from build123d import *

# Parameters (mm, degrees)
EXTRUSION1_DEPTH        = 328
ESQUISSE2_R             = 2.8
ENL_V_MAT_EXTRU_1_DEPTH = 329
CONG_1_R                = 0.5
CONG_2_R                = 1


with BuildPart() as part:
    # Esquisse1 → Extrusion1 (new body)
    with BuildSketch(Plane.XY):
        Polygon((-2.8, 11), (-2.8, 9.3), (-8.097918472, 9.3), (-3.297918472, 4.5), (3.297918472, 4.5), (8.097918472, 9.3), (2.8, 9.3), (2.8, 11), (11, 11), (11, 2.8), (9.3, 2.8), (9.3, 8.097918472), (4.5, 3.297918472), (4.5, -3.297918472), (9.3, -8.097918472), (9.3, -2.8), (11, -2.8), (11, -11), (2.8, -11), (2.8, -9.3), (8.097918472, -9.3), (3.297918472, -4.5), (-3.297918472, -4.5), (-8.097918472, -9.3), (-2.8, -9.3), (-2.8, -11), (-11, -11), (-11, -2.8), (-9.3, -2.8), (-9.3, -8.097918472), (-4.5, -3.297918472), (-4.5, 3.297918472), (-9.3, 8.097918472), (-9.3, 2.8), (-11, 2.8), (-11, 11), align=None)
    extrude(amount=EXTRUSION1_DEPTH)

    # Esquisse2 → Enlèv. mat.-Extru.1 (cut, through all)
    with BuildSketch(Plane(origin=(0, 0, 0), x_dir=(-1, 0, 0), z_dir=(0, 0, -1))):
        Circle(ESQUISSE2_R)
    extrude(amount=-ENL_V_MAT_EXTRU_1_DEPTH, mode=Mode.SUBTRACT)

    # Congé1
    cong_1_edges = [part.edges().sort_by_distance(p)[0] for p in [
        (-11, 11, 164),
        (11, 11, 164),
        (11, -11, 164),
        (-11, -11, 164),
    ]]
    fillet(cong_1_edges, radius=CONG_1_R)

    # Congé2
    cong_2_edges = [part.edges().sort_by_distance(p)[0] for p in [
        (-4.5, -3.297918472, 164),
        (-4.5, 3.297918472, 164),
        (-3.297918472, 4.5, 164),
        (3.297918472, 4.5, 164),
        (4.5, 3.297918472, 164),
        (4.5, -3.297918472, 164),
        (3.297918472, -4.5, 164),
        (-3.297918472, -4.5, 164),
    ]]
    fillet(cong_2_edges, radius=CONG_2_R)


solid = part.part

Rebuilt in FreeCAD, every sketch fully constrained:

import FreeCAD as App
import Part
import Sketcher

V = App.Vector
Q = App.Units.Quantity


def edges_at(feature, points):
    """Names of the edges that pass closest to the given points."""
    edges = feature.Shape.Edges
    near = lambda p: min(range(len(edges)), key=lambda i: edges[i].distToShape(Part.Vertex(*p))[0])
    return sorted({f"Edge{near(p) + 1}" for p in points})

doc = App.newDocument("Part")
body = doc.addObject("PartDesign::Body", "Body")

# Sketch on XY plane
sketch1 = doc.addObject("Sketcher::SketchObject", "Sketch")
body.addObject(sketch1)
sketch1.AttachmentSupport = (doc.XY_Plane, [""])
sketch1.MapMode = "FlatFace"
sketch1.addGeometry([
    Part.LineSegment(V(-2.8, 9.3, 0), V(-2.8, 11, 0)),  # 0
    Part.LineSegment(V(-2.8, 11, 0), V(-11, 11, 0)),  # 1
    Part.LineSegment(V(-11, 11, 0), V(-11, 2.8, 0)),  # 2
    Part.LineSegment(V(-11, 2.8, 0), V(-9.3, 2.8, 0)),  # 3
    Part.LineSegment(V(-9.3, 2.8, 0), V(-9.3, 8.1, 0)),  # 4
    Part.LineSegment(V(-9.3, 8.1, 0), V(-4.5, 3.3, 0)),  # 5
    Part.LineSegment(V(-4.5, 3.3, 0), V(-4.5, -3.3, 0)),  # 6
    Part.LineSegment(V(-4.5, -3.3, 0), V(-9.3, -8.1, 0)),  # 7
    Part.LineSegment(V(-9.3, -8.1, 0), V(-9.3, -2.8, 0)),  # 8
    Part.LineSegment(V(-9.3, -2.8, 0), V(-11, -2.8, 0)),  # 9
    Part.LineSegment(V(-11, -2.8, 0), V(-11, -11, 0)),  # 10
    Part.LineSegment(V(-11, -11, 0), V(-2.8, -11, 0)),  # 11
    Part.LineSegment(V(-2.8, -11, 0), V(-2.8, -9.3, 0)),  # 12
    Part.LineSegment(V(-2.8, -9.3, 0), V(-8.1, -9.3, 0)),  # 13
    Part.LineSegment(V(-8.1, -9.3, 0), V(-3.3, -4.5, 0)),  # 14
    Part.LineSegment(V(-3.3, -4.5, 0), V(3.3, -4.5, 0)),  # 15
    Part.LineSegment(V(3.3, -4.5, 0), V(8.1, -9.3, 0)),  # 16
    Part.LineSegment(V(8.1, -9.3, 0), V(2.8, -9.3, 0)),  # 17
    Part.LineSegment(V(2.8, -9.3, 0), V(2.8, -11, 0)),  # 18
    Part.LineSegment(V(2.8, -11, 0), V(11, -11, 0)),  # 19
    Part.LineSegment(V(11, -11, 0), V(11, -2.8, 0)),  # 20
    Part.LineSegment(V(11, -2.8, 0), V(9.3, -2.8, 0)),  # 21
    Part.LineSegment(V(9.3, -2.8, 0), V(9.3, -8.1, 0)),  # 22
    Part.LineSegment(V(9.3, -8.1, 0), V(4.5, -3.3, 0)),  # 23
    Part.LineSegment(V(4.5, -3.3, 0), V(4.5, 3.3, 0)),  # 24
    Part.LineSegment(V(4.5, 3.3, 0), V(9.3, 8.1, 0)),  # 25
    Part.LineSegment(V(9.3, 8.1, 0), V(9.3, 2.8, 0)),  # 26
    Part.LineSegment(V(9.3, 2.8, 0), V(11, 2.8, 0)),  # 27
    Part.LineSegment(V(11, 2.8, 0), V(11, 11, 0)),  # 28
    Part.LineSegment(V(11, 11, 0), V(2.8, 11, 0)),  # 29
    Part.LineSegment(V(2.8, 11, 0), V(2.8, 9.3, 0)),  # 30
    Part.LineSegment(V(2.8, 9.3, 0), V(8.1, 9.3, 0)),  # 31
    Part.LineSegment(V(8.1, 9.3, 0), V(3.3, 4.5, 0)),  # 32
    Part.LineSegment(V(3.3, 4.5, 0), V(-3.3, 4.5, 0)),  # 33
    Part.LineSegment(V(-3.3, 4.5, 0), V(-8.1, 9.3, 0)),  # 34
    Part.LineSegment(V(-8.1, 9.3, 0), V(-2.8, 9.3, 0)),  # 35
], False)
sketch1.addConstraint([
    Sketcher.Constraint("Coincident", 0, 2, 1, 1),
    Sketcher.Constraint("Coincident", 1, 2, 2, 1),
    Sketcher.Constraint("Coincident", 2, 2, 3, 1),
    Sketcher.Constraint("Coincident", 3, 2, 4, 1),
    Sketcher.Constraint("Coincident", 4, 2, 5, 1),
    Sketcher.Constraint("Coincident", 5, 2, 6, 1),
    Sketcher.Constraint("Coincident", 6, 2, 7, 1),
    Sketcher.Constraint("Coincident", 7, 2, 8, 1),
    Sketcher.Constraint("Coincident", 8, 2, 9, 1),
    Sketcher.Constraint("Coincident", 9, 2, 10, 1),
    Sketcher.Constraint("Coincident", 10, 2, 11, 1),
    Sketcher.Constraint("Coincident", 11, 2, 12, 1),
    Sketcher.Constraint("Coincident", 12, 2, 13, 1),
    Sketcher.Constraint("Coincident", 13, 2, 14, 1),
    Sketcher.Constraint("Coincident", 14, 2, 15, 1),
    Sketcher.Constraint("Coincident", 15, 2, 16, 1),
    Sketcher.Constraint("Coincident", 16, 2, 17, 1),
    Sketcher.Constraint("Coincident", 17, 2, 18, 1),
    Sketcher.Constraint("Coincident", 18, 2, 19, 1),
    Sketcher.Constraint("Coincident", 19, 2, 20, 1),
    Sketcher.Constraint("Coincident", 20, 2, 21, 1),
    Sketcher.Constraint("Coincident", 21, 2, 22, 1),
    Sketcher.Constraint("Coincident", 22, 2, 23, 1),
    Sketcher.Constraint("Coincident", 23, 2, 24, 1),
    Sketcher.Constraint("Coincident", 24, 2, 25, 1),
    Sketcher.Constraint("Coincident", 25, 2, 26, 1),
    Sketcher.Constraint("Coincident", 26, 2, 27, 1),
    Sketcher.Constraint("Coincident", 27, 2, 28, 1),
    Sketcher.Constraint("Coincident", 28, 2, 29, 1),
    Sketcher.Constraint("Coincident", 29, 2, 30, 1),
    Sketcher.Constraint("Coincident", 30, 2, 31, 1),
    Sketcher.Constraint("Coincident", 31, 2, 32, 1),
    Sketcher.Constraint("Coincident", 32, 2, 33, 1),
    Sketcher.Constraint("Coincident", 33, 2, 34, 1),
    Sketcher.Constraint("Coincident", 34, 2, 35, 1),
    Sketcher.Constraint("Coincident", 35, 2, 0, 1),
    Sketcher.Constraint("Vertical", 0),
    Sketcher.Constraint("Horizontal", 1),
    Sketcher.Constraint("Vertical", 2),
    Sketcher.Constraint("Horizontal", 3),
    Sketcher.Constraint("Vertical", 4),
    Sketcher.Constraint("Vertical", 6),
    Sketcher.Constraint("Vertical", 8),
    Sketcher.Constraint("Horizontal", 9),
    Sketcher.Constraint("Vertical", 10),
    Sketcher.Constraint("Horizontal", 11),
    Sketcher.Constraint("Vertical", 12),
    Sketcher.Constraint("Horizontal", 13),
    Sketcher.Constraint("Horizontal", 15),
    Sketcher.Constraint("Horizontal", 17),
    Sketcher.Constraint("Vertical", 18),
    Sketcher.Constraint("Horizontal", 19),
    Sketcher.Constraint("Vertical", 20),
    Sketcher.Constraint("Horizontal", 21),
    Sketcher.Constraint("Vertical", 22),
    Sketcher.Constraint("Vertical", 24),
    Sketcher.Constraint("Vertical", 26),
    Sketcher.Constraint("Horizontal", 27),
    Sketcher.Constraint("Vertical", 28),
    Sketcher.Constraint("Horizontal", 29),
    Sketcher.Constraint("Vertical", 30),
    Sketcher.Constraint("Horizontal", 31),
    Sketcher.Constraint("Horizontal", 33),
    Sketcher.Constraint("Horizontal", 35),
    Sketcher.Constraint("Symmetric", 0, 2, 18, 2, -1, 1),
    Sketcher.Constraint("Symmetric", 2, 2, 20, 2, -1, 1),
    Sketcher.Constraint("Symmetric", 4, 2, 22, 2, -1, 1),
    Sketcher.Constraint("Symmetric", 5, 2, 23, 2, -1, 1),
    Sketcher.Constraint("Symmetric", 7, 2, 25, 2, -1, 1),
    Sketcher.Constraint("Symmetric", 9, 2, 27, 2, -1, 1),
    Sketcher.Constraint("Symmetric", 11, 2, 29, 2, -1, 1),
    Sketcher.Constraint("Symmetric", 13, 2, 31, 2, -1, 1),
    Sketcher.Constraint("Symmetric", 14, 2, 32, 2, -1, 1),
    Sketcher.Constraint("Symmetric", 16, 2, 34, 2, -1, 1),
    Sketcher.Constraint("Symmetric", 13, 2, 16, 2, -2),
    Sketcher.Constraint("Symmetric", 11, 2, 18, 2, -2),
    Sketcher.Constraint("Symmetric", 9, 2, 20, 2, -2),
    Sketcher.Constraint("Symmetric", 7, 2, 22, 2, -2),
    Sketcher.Constraint("Perpendicular", 5, 7),
    Sketcher.Constraint("Parallel", 7, 14),
    Sketcher.Constraint("Perpendicular", 14, 16),
    Sketcher.Constraint("Perpendicular", 23, 25),
    Sketcher.Constraint("Perpendicular", 32, 34),
    Sketcher.Constraint("Horizontal", 6, 2, 23, 2),
    Sketcher.Constraint("Equal", 27, 0),
    Sketcher.Constraint("Equal", 29, 2),
    Sketcher.Constraint("Equal", 35, 4),
    Sketcher.Constraint("Equal", 33, 6),
    Sketcher.Constraint("Equal", 7, 14),
    Sketcher.Constraint("DistanceX", 1, 2, 1, 1, Q("8.2 mm")),
    Sketcher.Constraint("DistanceX", 3, 1, 3, 2, Q("1.7 mm")),
    Sketcher.Constraint("DistanceY", -1, 1, 0, 2, Q("11 mm")),
    Sketcher.Constraint("DistanceX", 5, 2, 24, 2, Q("9 mm")),
    Sketcher.Constraint("DistanceX", 13, 2, 13, 1, Q("5.297918 mm")),
])
pad1 = doc.addObject("PartDesign::Pad", "Pad")
body.addObject(pad1)
pad1.Profile = sketch1
pad1.Length = 328

# Sketch on XY plane
sketch2 = doc.addObject("Sketcher::SketchObject", "Sketch001")
body.addObject(sketch2)
sketch2.AttachmentSupport = (doc.XY_Plane, [""])
sketch2.MapMode = "FlatFace"
sketch2.addGeometry(Part.Circle(V(0, 0, 0), V(0, 0, 1), 2.8), False)
sketch2.addConstraint([
    Sketcher.Constraint("Coincident", 0, 3, -1, 1),
    Sketcher.Constraint("Diameter", 0, Q("5.6 mm")),
])
pocket1 = doc.addObject("PartDesign::Pocket", "Pocket")
body.addObject(pocket1)
pocket1.Profile = sketch2
pocket1.Type = "ThroughAll"
pocket1.Reversed = True
doc.recompute()

fillet = doc.addObject("PartDesign::Fillet", "Fillet")
body.addObject(fillet)
fillet.Base = (pocket1, edges_at(pocket1, [
    (-11, 11, 164),
    (11, 11, 164),
    (11, -11, 164),
    (-11, -11, 164),
]))
fillet.Radius = 0.5
doc.recompute()

fillet2 = doc.addObject("PartDesign::Fillet", "Fillet001")
body.addObject(fillet2)
fillet2.Base = (fillet, edges_at(fillet, [
    (-4.5, -3.298, 164),
    (-4.5, 3.298, 164),
    (-3.298, 4.5, 164),
    (3.298, 4.5, 164),
    (4.5, 3.298, 164),
    (4.5, -3.298, 164),
    (3.298, -4.5, 164),
    (-3.298, -4.5, 164),
]))
fillet2.Radius = 1

doc.recompute()
